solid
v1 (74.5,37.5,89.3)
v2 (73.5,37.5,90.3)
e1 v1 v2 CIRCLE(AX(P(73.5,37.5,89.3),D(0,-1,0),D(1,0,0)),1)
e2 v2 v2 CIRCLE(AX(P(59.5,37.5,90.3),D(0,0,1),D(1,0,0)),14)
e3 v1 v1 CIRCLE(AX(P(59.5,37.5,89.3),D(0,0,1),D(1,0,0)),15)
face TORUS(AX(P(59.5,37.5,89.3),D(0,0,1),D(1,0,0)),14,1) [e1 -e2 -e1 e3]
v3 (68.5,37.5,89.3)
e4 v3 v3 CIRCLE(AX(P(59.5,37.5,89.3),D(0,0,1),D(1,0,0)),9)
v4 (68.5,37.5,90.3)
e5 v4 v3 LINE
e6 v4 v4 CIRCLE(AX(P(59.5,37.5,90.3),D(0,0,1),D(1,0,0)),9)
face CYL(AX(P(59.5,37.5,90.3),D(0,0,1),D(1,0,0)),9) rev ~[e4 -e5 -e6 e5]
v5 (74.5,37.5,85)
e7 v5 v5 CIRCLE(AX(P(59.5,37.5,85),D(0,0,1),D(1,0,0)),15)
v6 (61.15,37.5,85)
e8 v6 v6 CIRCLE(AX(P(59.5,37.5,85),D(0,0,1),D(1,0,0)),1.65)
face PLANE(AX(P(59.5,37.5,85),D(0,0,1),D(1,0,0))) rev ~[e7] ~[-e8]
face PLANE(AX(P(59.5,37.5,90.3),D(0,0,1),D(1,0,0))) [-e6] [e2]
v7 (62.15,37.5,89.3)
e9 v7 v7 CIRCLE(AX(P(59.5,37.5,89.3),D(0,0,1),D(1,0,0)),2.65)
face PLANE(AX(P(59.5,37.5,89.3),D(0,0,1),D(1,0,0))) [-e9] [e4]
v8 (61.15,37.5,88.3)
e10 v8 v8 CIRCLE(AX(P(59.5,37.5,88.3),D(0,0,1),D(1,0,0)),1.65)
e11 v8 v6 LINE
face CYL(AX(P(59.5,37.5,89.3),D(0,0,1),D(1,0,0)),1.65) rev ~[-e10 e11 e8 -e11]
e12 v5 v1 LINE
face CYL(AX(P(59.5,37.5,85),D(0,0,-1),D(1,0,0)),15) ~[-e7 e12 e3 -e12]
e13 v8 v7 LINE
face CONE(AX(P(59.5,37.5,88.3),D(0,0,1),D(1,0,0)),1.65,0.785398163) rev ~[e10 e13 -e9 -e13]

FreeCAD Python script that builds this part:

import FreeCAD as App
import Part
import Sketcher

V = App.Vector


def edges_at(feature, points):
    """Names of the edges that pass closest to the given points."""
    edges = feature.Shape.Edges
    near = lambda p: min(range(len(edges)), key=lambda i: edges[i].distToShape(Part.Vertex(*p))[0])
    return sorted({f"Edge{near(p) + 1}" for p in points})

doc = App.newDocument("Part")
body = doc.addObject("PartDesign::Body", "Body")

sketch1 = doc.addObject("Sketcher::SketchObject", "Sketch")
body.addObject(sketch1)
sketch1.AttachmentSupport = (doc.XY_Plane, [""])
sketch1.MapMode = "FlatFace"
sketch1.addGeometry(Part.Circle(V(0, 0, 0), V(0, 0, 1), 15), False)
sketch1.addConstraint(Sketcher.Constraint("Coincident", 0, 3, -1, 1))
sketch1.addConstraint(Sketcher.Constraint("Diameter", 0, 30.0))
pad1 = doc.addObject("PartDesign::Pad", "Pad")
body.addObject(pad1)
pad1.Profile = sketch1
pad1.Length = 5.3

sketch2 = doc.addObject("Sketcher::SketchObject", "Sketch001")
body.addObject(sketch2)
sketch2.AttachmentSupport = (doc.XY_Plane, [""])
sketch2.MapMode = "FlatFace"
sketch2.AttachmentOffset = App.Placement(V(0, 0, 5.3), App.Rotation())
sketch2.addGeometry(Part.Circle(V(0, 0, 0), V(0, 0, 1), 9), False)
sketch2.addConstraint(Sketcher.Constraint("Coincident", 0, 3, -1, 1))
sketch2.addConstraint(Sketcher.Constraint("Diameter", 0, 18.0))
pocket1 = doc.addObject("PartDesign::Pocket", "Pocket")
body.addObject(pocket1)
pocket1.Profile = sketch2
pocket1.Length = 1

sketch3 = doc.addObject("Sketcher::SketchObject", "Sketch002")
body.addObject(sketch3)
sketch3.AttachmentSupport = (doc.XY_Plane, [""])
sketch3.MapMode = "FlatFace"
sketch3.AttachmentOffset = App.Placement(V(0, 0, 4.3), App.Rotation())
sketch3.addGeometry(Part.Circle(V(0, 0, 0), V(0, 0, 1), 1.6), False)
sketch3.addConstraint(Sketcher.Constraint("Coincident", 0, 3, -1, 1))
sketch3.addConstraint(Sketcher.Constraint("Diameter", 0, 3.3))
pocket2 = doc.addObject("PartDesign::Pocket", "Pocket001")
body.addObject(pocket2)
pocket2.Profile = sketch3
pocket2.Length = 5
doc.recompute()

fillet = doc.addObject("PartDesign::Fillet", "Fillet")
body.addObject(fillet)
fillet.Base = (pocket2, edges_at(pocket2, [(-15, 0, 5.3)]))
fillet.Radius = 1
doc.recompute()

chamfer = doc.addObject("PartDesign::Chamfer", "Chamfer")
body.addObject(chamfer)
chamfer.Base = (fillet, edges_at(fillet, [(-1.65, 0, 4.3)]))
chamfer.Size = 1
body2 = doc.addObject("PartDesign::Body", "Body001")
doc.recompute()

body.Placement = App.Placement(V(59.5, 37.5, 85), App.Rotation(V(0, 0, 1), 0))
boolean = doc.addObject("PartDesign::Boolean", "Boolean")
body2.addObject(boolean)
boolean.Type = "Fuse"
boolean.addObjects([body])

doc.recompute()
